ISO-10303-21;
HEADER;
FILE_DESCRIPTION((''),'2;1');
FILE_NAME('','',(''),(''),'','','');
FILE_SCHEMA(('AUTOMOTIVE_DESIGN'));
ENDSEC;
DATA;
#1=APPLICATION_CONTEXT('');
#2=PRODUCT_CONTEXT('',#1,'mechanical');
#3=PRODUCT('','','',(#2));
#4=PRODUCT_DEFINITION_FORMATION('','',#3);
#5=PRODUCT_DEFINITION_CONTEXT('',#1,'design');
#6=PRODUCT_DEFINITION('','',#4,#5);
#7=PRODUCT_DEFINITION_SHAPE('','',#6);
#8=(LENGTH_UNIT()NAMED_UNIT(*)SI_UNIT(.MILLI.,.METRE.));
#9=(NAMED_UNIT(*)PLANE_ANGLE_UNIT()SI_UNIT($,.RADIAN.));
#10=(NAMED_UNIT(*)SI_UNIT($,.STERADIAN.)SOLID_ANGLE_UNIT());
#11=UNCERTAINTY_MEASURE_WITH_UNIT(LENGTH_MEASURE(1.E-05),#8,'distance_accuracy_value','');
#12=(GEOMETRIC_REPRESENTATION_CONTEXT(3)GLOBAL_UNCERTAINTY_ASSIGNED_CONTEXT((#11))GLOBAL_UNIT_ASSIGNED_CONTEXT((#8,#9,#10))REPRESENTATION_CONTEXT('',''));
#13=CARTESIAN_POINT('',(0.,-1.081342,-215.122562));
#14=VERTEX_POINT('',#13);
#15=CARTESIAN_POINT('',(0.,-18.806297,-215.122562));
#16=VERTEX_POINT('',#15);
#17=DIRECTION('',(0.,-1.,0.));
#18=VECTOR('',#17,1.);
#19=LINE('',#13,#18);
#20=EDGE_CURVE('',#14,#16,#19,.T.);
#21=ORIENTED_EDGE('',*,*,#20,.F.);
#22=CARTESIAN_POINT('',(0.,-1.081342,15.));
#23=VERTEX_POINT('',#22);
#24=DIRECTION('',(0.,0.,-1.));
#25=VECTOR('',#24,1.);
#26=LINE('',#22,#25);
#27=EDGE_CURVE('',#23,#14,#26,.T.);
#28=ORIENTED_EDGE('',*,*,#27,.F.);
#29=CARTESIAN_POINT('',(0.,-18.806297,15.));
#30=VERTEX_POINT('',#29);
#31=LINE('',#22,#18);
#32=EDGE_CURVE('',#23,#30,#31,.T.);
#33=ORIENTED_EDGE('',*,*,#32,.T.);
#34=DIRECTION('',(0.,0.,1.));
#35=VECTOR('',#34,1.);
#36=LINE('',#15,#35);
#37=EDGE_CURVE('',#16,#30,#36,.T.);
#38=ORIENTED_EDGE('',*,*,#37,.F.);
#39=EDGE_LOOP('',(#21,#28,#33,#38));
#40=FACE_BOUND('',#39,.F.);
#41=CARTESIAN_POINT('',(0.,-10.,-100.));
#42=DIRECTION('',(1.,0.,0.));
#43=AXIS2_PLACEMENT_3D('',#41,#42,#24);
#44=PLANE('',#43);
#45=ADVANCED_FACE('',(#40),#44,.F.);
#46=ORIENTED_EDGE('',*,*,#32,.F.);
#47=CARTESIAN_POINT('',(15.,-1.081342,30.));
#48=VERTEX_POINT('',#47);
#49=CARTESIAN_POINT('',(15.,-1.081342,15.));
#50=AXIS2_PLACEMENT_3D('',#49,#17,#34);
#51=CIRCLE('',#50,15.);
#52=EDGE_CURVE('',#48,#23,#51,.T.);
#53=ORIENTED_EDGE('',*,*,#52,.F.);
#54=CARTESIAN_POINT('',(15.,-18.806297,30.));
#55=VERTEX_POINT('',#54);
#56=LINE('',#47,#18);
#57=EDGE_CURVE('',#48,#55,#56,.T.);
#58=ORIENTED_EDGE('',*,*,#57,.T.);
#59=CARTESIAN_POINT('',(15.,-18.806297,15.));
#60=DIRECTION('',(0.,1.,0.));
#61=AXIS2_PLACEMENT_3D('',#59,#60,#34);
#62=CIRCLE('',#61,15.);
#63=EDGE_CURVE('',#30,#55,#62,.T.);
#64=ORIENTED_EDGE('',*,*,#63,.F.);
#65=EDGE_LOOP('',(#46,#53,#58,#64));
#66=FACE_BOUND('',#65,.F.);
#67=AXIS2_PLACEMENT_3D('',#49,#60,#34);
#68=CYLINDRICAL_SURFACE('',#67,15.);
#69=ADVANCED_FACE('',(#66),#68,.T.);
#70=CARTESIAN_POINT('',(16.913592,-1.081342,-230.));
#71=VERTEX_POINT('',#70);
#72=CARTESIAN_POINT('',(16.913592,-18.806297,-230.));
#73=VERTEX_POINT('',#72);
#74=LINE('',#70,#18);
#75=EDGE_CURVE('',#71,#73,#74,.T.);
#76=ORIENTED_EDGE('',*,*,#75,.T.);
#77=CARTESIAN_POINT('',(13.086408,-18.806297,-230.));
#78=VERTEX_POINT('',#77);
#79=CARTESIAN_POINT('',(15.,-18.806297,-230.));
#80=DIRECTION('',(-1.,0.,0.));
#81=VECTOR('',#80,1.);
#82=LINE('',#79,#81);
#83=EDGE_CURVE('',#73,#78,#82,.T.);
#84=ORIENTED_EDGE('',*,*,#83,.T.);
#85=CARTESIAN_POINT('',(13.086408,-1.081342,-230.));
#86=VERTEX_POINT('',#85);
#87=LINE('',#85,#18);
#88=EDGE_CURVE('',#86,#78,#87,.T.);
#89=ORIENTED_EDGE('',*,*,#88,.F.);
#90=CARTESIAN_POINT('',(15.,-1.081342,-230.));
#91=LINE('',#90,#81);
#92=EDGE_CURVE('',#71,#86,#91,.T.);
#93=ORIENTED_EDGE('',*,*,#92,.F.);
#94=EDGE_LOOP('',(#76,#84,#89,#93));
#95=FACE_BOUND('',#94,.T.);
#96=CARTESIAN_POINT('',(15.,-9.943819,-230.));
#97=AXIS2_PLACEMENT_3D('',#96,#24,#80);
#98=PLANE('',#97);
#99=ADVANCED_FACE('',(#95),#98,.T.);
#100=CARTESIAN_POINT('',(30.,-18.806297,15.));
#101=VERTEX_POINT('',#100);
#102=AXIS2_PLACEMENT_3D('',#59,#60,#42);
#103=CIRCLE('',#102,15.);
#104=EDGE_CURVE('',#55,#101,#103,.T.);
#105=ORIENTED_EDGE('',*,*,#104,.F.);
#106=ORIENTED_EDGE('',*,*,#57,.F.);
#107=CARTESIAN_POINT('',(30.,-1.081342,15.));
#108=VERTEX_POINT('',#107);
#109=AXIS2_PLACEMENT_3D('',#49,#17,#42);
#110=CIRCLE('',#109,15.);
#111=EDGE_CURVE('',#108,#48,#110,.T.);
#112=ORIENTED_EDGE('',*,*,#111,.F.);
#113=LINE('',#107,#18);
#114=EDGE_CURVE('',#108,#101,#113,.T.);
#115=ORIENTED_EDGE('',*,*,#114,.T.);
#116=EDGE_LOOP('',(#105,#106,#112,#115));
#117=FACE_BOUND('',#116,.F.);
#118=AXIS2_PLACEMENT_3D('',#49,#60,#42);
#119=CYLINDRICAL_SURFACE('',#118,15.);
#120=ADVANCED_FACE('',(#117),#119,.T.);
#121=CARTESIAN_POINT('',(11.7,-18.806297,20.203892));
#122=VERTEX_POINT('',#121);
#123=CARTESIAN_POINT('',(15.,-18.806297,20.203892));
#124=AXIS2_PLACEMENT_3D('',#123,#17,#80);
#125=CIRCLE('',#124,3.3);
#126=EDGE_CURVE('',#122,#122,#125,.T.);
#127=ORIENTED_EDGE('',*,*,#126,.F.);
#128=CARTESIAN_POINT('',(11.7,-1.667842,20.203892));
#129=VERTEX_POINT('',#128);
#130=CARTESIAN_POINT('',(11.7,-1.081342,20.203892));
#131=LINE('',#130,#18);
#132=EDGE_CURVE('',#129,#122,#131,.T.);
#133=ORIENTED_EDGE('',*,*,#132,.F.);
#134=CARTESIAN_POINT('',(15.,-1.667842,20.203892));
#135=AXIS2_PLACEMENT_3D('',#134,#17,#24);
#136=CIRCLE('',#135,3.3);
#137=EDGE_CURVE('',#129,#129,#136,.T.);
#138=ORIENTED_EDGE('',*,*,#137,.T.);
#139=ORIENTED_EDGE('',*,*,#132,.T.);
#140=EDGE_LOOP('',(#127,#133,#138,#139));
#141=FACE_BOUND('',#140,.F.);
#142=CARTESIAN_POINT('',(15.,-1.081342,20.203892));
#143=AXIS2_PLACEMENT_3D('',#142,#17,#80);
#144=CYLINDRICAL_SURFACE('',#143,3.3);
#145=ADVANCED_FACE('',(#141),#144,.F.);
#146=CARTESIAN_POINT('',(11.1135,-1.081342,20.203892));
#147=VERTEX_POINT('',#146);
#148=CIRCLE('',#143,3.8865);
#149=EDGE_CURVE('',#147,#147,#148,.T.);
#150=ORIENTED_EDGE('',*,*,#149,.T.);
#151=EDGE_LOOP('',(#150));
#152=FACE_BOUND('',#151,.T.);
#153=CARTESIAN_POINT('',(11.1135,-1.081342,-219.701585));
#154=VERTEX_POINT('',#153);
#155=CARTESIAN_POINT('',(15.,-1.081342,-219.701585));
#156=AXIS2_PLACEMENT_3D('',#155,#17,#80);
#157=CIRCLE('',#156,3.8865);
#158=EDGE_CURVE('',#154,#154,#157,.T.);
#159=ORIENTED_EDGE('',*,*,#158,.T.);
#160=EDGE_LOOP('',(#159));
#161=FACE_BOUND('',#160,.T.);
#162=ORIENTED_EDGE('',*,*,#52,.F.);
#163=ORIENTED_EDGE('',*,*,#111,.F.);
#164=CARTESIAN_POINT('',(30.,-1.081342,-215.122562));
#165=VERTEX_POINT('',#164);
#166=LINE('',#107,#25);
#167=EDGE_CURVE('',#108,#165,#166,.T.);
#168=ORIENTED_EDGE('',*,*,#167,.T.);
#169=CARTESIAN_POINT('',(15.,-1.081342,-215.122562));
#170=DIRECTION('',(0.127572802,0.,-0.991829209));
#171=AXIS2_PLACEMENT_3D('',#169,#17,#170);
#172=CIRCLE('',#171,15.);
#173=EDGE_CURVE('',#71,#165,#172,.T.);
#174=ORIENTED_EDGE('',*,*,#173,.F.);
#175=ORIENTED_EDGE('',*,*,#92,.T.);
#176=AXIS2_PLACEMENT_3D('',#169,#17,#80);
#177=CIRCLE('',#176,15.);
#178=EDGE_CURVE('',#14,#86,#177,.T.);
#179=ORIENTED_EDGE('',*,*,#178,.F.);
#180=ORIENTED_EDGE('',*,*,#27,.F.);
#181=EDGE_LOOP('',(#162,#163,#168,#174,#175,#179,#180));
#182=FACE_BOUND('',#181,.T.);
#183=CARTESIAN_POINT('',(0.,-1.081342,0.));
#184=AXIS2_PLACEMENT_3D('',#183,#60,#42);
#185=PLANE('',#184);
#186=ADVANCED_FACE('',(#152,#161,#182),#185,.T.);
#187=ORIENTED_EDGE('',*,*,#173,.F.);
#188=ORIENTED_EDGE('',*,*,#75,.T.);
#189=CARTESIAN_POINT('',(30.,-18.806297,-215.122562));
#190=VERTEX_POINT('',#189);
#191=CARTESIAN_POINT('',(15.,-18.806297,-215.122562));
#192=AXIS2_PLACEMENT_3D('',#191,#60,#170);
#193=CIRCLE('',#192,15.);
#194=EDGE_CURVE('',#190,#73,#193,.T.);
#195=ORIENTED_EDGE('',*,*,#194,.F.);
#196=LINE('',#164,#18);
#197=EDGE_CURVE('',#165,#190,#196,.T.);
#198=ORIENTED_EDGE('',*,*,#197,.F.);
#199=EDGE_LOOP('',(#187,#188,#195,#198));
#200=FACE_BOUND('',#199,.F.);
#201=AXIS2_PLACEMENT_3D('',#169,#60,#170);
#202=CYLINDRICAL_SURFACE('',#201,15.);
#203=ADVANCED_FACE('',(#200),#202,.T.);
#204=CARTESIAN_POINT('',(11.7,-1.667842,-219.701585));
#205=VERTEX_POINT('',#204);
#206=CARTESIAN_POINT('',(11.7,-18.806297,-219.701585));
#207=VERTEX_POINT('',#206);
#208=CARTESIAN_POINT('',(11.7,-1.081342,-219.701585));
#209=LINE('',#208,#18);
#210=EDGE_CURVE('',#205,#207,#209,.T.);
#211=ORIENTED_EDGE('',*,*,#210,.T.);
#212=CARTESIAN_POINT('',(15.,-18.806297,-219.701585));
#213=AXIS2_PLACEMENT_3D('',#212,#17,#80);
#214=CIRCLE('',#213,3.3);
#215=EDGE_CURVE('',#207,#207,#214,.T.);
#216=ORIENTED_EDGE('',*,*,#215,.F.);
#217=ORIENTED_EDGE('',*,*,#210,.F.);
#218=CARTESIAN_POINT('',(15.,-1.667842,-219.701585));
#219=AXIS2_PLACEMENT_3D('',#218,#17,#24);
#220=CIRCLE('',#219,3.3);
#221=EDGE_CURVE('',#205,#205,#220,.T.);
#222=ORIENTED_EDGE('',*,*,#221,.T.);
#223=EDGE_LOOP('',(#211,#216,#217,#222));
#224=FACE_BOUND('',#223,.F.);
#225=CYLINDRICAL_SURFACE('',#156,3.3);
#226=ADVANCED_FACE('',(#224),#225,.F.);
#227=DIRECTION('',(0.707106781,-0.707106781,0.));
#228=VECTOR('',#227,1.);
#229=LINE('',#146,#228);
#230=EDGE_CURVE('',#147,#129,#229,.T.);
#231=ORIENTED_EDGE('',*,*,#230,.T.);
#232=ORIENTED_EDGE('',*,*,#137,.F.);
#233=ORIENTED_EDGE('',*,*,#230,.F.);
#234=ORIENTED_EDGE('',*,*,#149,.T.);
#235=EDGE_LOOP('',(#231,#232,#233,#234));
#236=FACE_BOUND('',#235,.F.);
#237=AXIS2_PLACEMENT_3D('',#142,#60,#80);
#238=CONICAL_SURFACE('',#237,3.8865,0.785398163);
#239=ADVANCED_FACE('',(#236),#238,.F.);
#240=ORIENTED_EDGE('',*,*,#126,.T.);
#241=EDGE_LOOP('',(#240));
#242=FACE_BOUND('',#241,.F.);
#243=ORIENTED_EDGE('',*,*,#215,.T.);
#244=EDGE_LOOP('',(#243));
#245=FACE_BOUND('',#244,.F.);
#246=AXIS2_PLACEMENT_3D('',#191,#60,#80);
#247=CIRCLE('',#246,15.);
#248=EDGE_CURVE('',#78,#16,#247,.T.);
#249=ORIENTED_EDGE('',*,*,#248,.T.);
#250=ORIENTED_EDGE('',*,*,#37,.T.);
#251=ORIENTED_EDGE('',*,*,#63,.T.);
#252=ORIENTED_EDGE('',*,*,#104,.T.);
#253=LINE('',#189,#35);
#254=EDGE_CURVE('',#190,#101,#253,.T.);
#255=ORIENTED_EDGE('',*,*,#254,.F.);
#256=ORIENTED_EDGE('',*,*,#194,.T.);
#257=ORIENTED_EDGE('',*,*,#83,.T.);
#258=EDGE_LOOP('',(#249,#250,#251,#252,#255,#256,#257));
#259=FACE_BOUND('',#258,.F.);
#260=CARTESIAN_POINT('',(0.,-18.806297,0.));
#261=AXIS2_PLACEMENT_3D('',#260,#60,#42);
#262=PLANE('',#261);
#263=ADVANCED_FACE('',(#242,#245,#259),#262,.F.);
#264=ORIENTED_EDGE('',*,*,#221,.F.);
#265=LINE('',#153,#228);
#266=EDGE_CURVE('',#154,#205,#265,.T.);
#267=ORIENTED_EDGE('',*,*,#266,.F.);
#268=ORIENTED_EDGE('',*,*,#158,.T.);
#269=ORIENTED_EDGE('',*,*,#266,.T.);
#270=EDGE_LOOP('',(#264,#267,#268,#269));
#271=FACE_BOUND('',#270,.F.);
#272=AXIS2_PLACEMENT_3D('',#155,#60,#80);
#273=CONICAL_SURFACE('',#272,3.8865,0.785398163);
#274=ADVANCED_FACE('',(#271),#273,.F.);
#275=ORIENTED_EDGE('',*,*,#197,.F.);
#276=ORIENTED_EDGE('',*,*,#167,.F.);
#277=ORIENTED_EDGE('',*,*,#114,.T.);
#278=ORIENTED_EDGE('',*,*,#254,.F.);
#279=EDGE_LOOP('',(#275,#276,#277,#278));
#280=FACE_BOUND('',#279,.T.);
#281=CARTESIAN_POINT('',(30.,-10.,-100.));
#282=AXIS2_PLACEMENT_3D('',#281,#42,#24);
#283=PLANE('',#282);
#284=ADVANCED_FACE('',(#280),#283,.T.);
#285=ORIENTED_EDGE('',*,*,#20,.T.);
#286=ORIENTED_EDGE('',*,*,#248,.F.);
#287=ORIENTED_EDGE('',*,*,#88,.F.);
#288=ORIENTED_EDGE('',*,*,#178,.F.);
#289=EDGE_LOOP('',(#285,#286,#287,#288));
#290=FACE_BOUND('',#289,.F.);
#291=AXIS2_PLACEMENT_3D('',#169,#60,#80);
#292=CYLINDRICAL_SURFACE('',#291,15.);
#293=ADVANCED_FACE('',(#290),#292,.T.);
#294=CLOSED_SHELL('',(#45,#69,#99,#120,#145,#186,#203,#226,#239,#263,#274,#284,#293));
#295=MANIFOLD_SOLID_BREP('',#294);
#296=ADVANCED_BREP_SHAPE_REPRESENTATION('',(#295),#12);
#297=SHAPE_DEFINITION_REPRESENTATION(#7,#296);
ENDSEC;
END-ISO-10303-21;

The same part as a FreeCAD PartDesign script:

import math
import FreeCAD as App
import Part
import Sketcher
from FreeCAD import Vector


def add_polygon(sketch, points):
    """Adds a closed chain of lines whose ends are joined by coincident constraints."""
    first, n = sketch.GeometryCount, len(points)
    for a, b in zip(points, points[1:] + points[:1]):
        sketch.addGeometry(Part.LineSegment(App.Vector(*a, 0), App.Vector(*b, 0)), False)
    for i in range(n):
        sketch.addConstraint(Sketcher.Constraint("Coincident", first + i, 2, first + (i + 1) % n, 1))

doc = App.newDocument("Part")
body = doc.addObject("PartDesign::Body", "Body")

# Sketch on YZ plane
sketch1 = body.newObject("Sketcher::SketchObject", "Sketch")
sketch1.AttachmentSupport = (doc.getObject("YZ_Plane"), [""])
sketch1.MapMode = "FlatFace"
add_polygon(sketch1, [(0, 0), (-20, 0), (-20, -200), (0, -200)])  # lines 0-3
sketch1.addConstraint([
    Sketcher.Constraint("Horizontal", 0),
    Sketcher.Constraint("Vertical", 1),
    Sketcher.Constraint("Horizontal", 2),
    Sketcher.Constraint("Vertical", 3),
    Sketcher.Constraint("Coincident", 3, 2, -1, 1),
    Sketcher.Constraint("DistanceX", 0, 2, 0, 1, 20.0),
    Sketcher.Constraint("DistanceY", 1, 2, 1, 1, 200.0),
])
pad1 = body.newObject("PartDesign::Pad", "Pad")
pad1.Profile = sketch1
pad1.Length = 30

# Sketch on XY plane
sketch2 = body.newObject("Sketcher::SketchObject", "Sketch001")
sketch2.AttachmentSupport = (doc.getObject("XY_Plane"), [""])
sketch2.MapMode = "FlatFace"
add_polygon(sketch2, [(0, -1), (0, -19), (30, -19), (30, -1)])  # lines 0-3
sketch2.addConstraint([
    Sketcher.Constraint("Vertical", 0),
    Sketcher.Constraint("Horizontal", 1),
    Sketcher.Constraint("Vertical", 2),
    Sketcher.Constraint("Horizontal", 3),
    Sketcher.Constraint("PointOnObject", 0, 2, -2),
    Sketcher.Constraint("DistanceX", 1, 1, 1, 2, 30.0),
    Sketcher.Constraint("DistanceY", 0, 2, 0, 1, 17.724954),
    Sketcher.Constraint("DistanceY", 0, 2, -1, 1, 18.806297),
])
pad2 = body.newObject("PartDesign::Pad", "Pad001")
pad2.Profile = sketch2
pad2.Type = "TwoLengths"
pad2.Length = 30
pad2.Length2 = 1

# Sketch on XZ plane
sketch3 = body.newObject("Sketcher::SketchObject", "Sketch002")
sketch3.AttachmentSupport = (doc.getObject("XZ_Plane"), [""])
sketch3.MapMode = "FlatFace"
sketch3.AttachmentOffset = App.Placement(Vector(0, 0, 1.081342), App.Rotation())
sketch3.addGeometry([
    Part.ArcOfCircle(Part.Circle(Vector(15, 15, 0), Vector(0, 0, 1), 15), math.radians(90), math.radians(180)),  # 0
    Part.LineSegment(Vector(0, 15, 0), Vector(0, 30, 0)),  # 1
    Part.LineSegment(Vector(0, 30, 0), Vector(15, 30, 0)),  # 2
    Part.LineSegment(Vector(30, 30, 0), Vector(30, 15, 0)),  # 3
    Part.ArcOfCircle(Part.Circle(Vector(15, 15, 0), Vector(0, 0, 1), 15), math.radians(0), math.radians(90)),  # 4
    Part.LineSegment(Vector(15, 30, 0), Vector(30, 30, 0)),  # 5
], False)
sketch3.addConstraint([
    Sketcher.Constraint("Tangent", 0, 2, 1, 1),
    Sketcher.Constraint("Coincident", 1, 2, 2, 1),
    Sketcher.Constraint("Tangent", 2, 2, 0, 1),
    Sketcher.Constraint("Tangent", 3, 2, 4, 1),
    Sketcher.Constraint("Tangent", 4, 2, 5, 1),
    Sketcher.Constraint("Coincident", 5, 2, 3, 1),
    Sketcher.Constraint("Vertical", 1),
    Sketcher.Constraint("Horizontal", 2),
    Sketcher.Constraint("Vertical", 3),
    Sketcher.Constraint("Horizontal", 5),
    Sketcher.Constraint("Coincident", 4, 3, 0, 3),
    Sketcher.Constraint("Equal", 0, 4),
    Sketcher.Constraint("PointOnObject", 0, 2, -2),
    Sketcher.Constraint("Radius", 0, 15.0),
    Sketcher.Constraint("DistanceY", -1, 1, 0, 3, 15.0),
])
pocket1 = body.newObject("PartDesign::Pocket", "Pocket")
pocket1.Profile = sketch3
pocket1.Length = 18
pocket1.Reversed = True

# Sketch on XZ plane
sketch4 = body.newObject("Sketcher::SketchObject", "Sketch003")
sketch4.AttachmentSupport = (doc.getObject("XZ_Plane"), [""])
sketch4.MapMode = "FlatFace"
sketch4.AttachmentOffset = App.Placement(Vector(0, 0, 1.081342), App.Rotation())
sketch4.addGeometry(Part.Circle(Vector(15, 20.2, 0), Vector(0, 0, 1), 3.3), False)
sketch4.addConstraint([
    Sketcher.Constraint("Diameter", 0, 6.6),
    Sketcher.Constraint("DistanceX", -1, 1, 0, 3, 15.0),
    Sketcher.Constraint("DistanceY", -1, 1, 0, 3, 20.203892),
])
doc.recompute()
hole = body.newObject("PartDesign::Hole", "Hole")
hole.Profile = sketch4
hole.ThreadType = "None"
hole.Diameter = 6.6
hole.DepthType = "Dimension"
hole.Depth = 17.724954
hole.DrillPoint = "Flat"
hole.HoleCutType = "Countersink"
hole.HoleCutDiameter = 7.773
hole.HoleCutCountersinkAngle = 90
hole.Reversed = True

# Sketch on XY plane
sketch5 = body.newObject("Sketcher::SketchObject", "Sketch004")
sketch5.AttachmentSupport = (doc.getObject("XY_Plane"), [""])
sketch5.MapMode = "FlatFace"
sketch5.AttachmentOffset = App.Placement(Vector(0, 0, -200), App.Rotation())
add_polygon(sketch5, [(30, -1), (30, -19), (0, -19), (0, -1)])  # lines 0-3
sketch5.addConstraint([
    Sketcher.Constraint("Vertical", 0),
    Sketcher.Constraint("Horizontal", 1),
    Sketcher.Constraint("Vertical", 2),
    Sketcher.Constraint("Horizontal", 3),
    Sketcher.Constraint("PointOnObject", 1, 2, -2),
    Sketcher.Constraint("DistanceX", 1, 2, 1, 1, 30.0),
    Sketcher.Constraint("DistanceY", 0, 2, 0, 1, 17.724954),
    Sketcher.Constraint("DistanceY", 0, 2, -1, 1, 18.806297),
])
pad3 = body.newObject("PartDesign::Pad", "Pad002")
pad3.Profile = sketch5
pad3.Length = 30
pad3.Reversed = True

# Sketch on XZ plane
sketch6 = body.newObject("Sketcher::SketchObject", "Sketch005")
sketch6.AttachmentSupport = (doc.getObject("XZ_Plane"), [""])
sketch6.MapMode = "FlatFace"
sketch6.AttachmentOffset = App.Placement(Vector(0, 0, 1.081342), App.Rotation())
sketch6.addGeometry([
    Part.LineSegment(Vector(0, -230, 0), Vector(0, -215, 0)),  # 0
    Part.ArcOfCircle(Part.Circle(Vector(15, -215, 0), Vector(0, 0, 1), 15), math.radians(180), math.radians(263)),  # 1
    Part.LineSegment(Vector(13, -230, 0), Vector(0, -230, 0)),  # 2
    Part.ArcOfCircle(Part.Circle(Vector(15, -215, 0), Vector(0, 0, 1), 15), math.radians(-83), math.radians(0)),  # 3
    Part.LineSegment(Vector(30, -215, 0), Vector(30, -230, 0)),  # 4
    Part.LineSegment(Vector(30, -230, 0), Vector(17, -230, 0)),  # 5
], False)
sketch6.addConstraint([
    Sketcher.Constraint("Tangent", 0, 2, 1, 1),
    Sketcher.Constraint("Coincident", 1, 2, 2, 1),
    Sketcher.Constraint("Coincident", 2, 2, 0, 1),
    Sketcher.Constraint("Tangent", 3, 2, 4, 1),
    Sketcher.Constraint("Coincident", 4, 2, 5, 1),
    Sketcher.Constraint("Coincident", 5, 2, 3, 1),
    Sketcher.Constraint("Vertical", 0),
    Sketcher.Constraint("Horizontal", 2),
    Sketcher.Constraint("Vertical", 4),
    Sketcher.Constraint("Horizontal", 5),
    Sketcher.Constraint("Coincident", 3, 3, 1, 3),
    Sketcher.Constraint("Equal", 1, 3),
    Sketcher.Constraint("PointOnObject", 0, 2, -2),
    Sketcher.Constraint("Horizontal", 2, 2, 4, 2),
    Sketcher.Constraint("Radius", 1, 15.0),
    Sketcher.Constraint("DistanceY", 1, 2, -1, 1, 230.0),
    Sketcher.Constraint("DistanceY", 0, 1, 0, 2, 14.877438),
])
pocket2 = body.newObject("PartDesign::Pocket", "Pocket001")
pocket2.Profile = sketch6
pocket2.Length = 30
pocket2.Reversed = True

# Sketch on XZ plane
sketch7 = body.newObject("Sketcher::SketchObject", "Sketch006")
sketch7.AttachmentSupport = (doc.getObject("XZ_Plane"), [""])
sketch7.MapMode = "FlatFace"
sketch7.AttachmentOffset = App.Placement(Vector(0, 0, 1.081342), App.Rotation())
sketch7.addGeometry(Part.Circle(Vector(15, -219.7, 0), Vector(0, 0, 1), 3.3), False)
sketch7.addConstraint([
    Sketcher.Constraint("Diameter", 0, 6.6),
    Sketcher.Constraint("DistanceX", -1, 1, 0, 3, 15.0),
    Sketcher.Constraint("DistanceY", 0, 3, -1, 1, 219.701585),
])
doc.recompute()
hole2 = body.newObject("PartDesign::Hole", "Hole001")
hole2.Profile = sketch7
hole2.ThreadType = "None"
hole2.Diameter = 6.6
hole2.DepthType = "Dimension"
hole2.Depth = 17.724954
hole2.DrillPoint = "Flat"
hole2.HoleCutType = "Countersink"
hole2.HoleCutDiameter = 7.773
hole2.HoleCutCountersinkAngle = 90
hole2.Reversed = True

# Sketch on XY plane
sketch8 = body.newObject("Sketcher::SketchObject", "Sketch007")
sketch8.AttachmentSupport = (doc.getObject("XY_Plane"), [""])
sketch8.MapMode = "FlatFace"
add_polygon(sketch8, [(0, 0), (0, -1.1), (30, -1.1), (30, 0)])  # lines 0-3
add_polygon(sketch8, [(0, -18.8), (0, -20), (30, -20), (30, -18.8)])  # lines 4-7
sketch8.addConstraint([
    Sketcher.Constraint("Vertical", 0),
    Sketcher.Constraint("Horizontal", 1),
    Sketcher.Constraint("Vertical", 2),
    Sketcher.Constraint("Horizontal", 3),
    Sketcher.Constraint("Vertical", 4),
    Sketcher.Constraint("Horizontal", 5),
    Sketcher.Constraint("Vertical", 6),
    Sketcher.Constraint("Horizontal", 7),
    Sketcher.Constraint("Coincident", 3, 2, -1, 1),
    Sketcher.Constraint("PointOnObject", 4, 2, -2),
    Sketcher.Constraint("Vertical", 2, 2, 5, 2),
    Sketcher.Constraint("DistanceX", 1, 1, 1, 2, 30.0),
    Sketcher.Constraint("DistanceY", 4, 2, -1, 1, 20.0),
    Sketcher.Constraint("DistanceY", 0, 2, 0, 1, 1.081342),
    Sketcher.Constraint("DistanceY", 4, 2, 4, 1, 1.193703),
])
pocket3 = body.newObject("PartDesign::Pocket", "Pocket002")
pocket3.Profile = sketch8
pocket3.Length = 215

doc.recompute()
